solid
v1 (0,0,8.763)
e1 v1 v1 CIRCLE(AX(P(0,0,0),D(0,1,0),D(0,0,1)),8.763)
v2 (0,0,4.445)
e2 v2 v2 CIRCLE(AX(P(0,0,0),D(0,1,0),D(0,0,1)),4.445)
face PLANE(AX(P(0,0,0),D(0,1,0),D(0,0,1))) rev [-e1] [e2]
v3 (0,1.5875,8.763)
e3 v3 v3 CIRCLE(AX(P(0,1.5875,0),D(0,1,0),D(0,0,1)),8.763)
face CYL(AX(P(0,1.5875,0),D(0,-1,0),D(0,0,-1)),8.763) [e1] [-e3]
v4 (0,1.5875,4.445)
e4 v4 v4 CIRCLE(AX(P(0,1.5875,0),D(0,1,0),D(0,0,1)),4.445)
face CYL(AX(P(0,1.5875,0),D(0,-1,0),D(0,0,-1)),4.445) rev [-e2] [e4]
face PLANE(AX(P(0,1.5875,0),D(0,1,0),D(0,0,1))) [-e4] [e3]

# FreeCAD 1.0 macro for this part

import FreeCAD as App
import Part
import Sketcher
from FreeCAD import Vector
Q = App.Units.Quantity

doc = App.newDocument("Part")
body = doc.addObject("PartDesign::Body", "Body")

sketch1 = doc.addObject("Sketcher::SketchObject", "Sketch")
body.addObject(sketch1)
sketch1.AttachmentSupport = (doc.XZ_Plane, [""])
sketch1.MapMode = "FlatFace"
sketch1.addGeometry(Part.Circle(Vector(0, 0, 0), Vector(0, 0, 1), 8.8), False)
sketch1.addGeometry(Part.Circle(Vector(0, 0, 0), Vector(0, 0, 1), 4.4), False)
sketch1.addConstraint(Sketcher.Constraint("Coincident", 0, 3, -1, 1))
sketch1.addConstraint(Sketcher.Constraint("Coincident", 1, 3, -1, 1))
sketch1.addConstraint(Sketcher.Constraint("Diameter", 0, Q("0.69 in")))
sketch1.addConstraint(Sketcher.Constraint("Diameter", 1, Q("0.35 in")))
pad1 = doc.addObject("PartDesign::Pad", "Pad")
body.addObject(pad1)
pad1.Profile = sketch1
pad1.Length = Q("0.0625 in")
pad1.Reversed = True

doc.recompute()
